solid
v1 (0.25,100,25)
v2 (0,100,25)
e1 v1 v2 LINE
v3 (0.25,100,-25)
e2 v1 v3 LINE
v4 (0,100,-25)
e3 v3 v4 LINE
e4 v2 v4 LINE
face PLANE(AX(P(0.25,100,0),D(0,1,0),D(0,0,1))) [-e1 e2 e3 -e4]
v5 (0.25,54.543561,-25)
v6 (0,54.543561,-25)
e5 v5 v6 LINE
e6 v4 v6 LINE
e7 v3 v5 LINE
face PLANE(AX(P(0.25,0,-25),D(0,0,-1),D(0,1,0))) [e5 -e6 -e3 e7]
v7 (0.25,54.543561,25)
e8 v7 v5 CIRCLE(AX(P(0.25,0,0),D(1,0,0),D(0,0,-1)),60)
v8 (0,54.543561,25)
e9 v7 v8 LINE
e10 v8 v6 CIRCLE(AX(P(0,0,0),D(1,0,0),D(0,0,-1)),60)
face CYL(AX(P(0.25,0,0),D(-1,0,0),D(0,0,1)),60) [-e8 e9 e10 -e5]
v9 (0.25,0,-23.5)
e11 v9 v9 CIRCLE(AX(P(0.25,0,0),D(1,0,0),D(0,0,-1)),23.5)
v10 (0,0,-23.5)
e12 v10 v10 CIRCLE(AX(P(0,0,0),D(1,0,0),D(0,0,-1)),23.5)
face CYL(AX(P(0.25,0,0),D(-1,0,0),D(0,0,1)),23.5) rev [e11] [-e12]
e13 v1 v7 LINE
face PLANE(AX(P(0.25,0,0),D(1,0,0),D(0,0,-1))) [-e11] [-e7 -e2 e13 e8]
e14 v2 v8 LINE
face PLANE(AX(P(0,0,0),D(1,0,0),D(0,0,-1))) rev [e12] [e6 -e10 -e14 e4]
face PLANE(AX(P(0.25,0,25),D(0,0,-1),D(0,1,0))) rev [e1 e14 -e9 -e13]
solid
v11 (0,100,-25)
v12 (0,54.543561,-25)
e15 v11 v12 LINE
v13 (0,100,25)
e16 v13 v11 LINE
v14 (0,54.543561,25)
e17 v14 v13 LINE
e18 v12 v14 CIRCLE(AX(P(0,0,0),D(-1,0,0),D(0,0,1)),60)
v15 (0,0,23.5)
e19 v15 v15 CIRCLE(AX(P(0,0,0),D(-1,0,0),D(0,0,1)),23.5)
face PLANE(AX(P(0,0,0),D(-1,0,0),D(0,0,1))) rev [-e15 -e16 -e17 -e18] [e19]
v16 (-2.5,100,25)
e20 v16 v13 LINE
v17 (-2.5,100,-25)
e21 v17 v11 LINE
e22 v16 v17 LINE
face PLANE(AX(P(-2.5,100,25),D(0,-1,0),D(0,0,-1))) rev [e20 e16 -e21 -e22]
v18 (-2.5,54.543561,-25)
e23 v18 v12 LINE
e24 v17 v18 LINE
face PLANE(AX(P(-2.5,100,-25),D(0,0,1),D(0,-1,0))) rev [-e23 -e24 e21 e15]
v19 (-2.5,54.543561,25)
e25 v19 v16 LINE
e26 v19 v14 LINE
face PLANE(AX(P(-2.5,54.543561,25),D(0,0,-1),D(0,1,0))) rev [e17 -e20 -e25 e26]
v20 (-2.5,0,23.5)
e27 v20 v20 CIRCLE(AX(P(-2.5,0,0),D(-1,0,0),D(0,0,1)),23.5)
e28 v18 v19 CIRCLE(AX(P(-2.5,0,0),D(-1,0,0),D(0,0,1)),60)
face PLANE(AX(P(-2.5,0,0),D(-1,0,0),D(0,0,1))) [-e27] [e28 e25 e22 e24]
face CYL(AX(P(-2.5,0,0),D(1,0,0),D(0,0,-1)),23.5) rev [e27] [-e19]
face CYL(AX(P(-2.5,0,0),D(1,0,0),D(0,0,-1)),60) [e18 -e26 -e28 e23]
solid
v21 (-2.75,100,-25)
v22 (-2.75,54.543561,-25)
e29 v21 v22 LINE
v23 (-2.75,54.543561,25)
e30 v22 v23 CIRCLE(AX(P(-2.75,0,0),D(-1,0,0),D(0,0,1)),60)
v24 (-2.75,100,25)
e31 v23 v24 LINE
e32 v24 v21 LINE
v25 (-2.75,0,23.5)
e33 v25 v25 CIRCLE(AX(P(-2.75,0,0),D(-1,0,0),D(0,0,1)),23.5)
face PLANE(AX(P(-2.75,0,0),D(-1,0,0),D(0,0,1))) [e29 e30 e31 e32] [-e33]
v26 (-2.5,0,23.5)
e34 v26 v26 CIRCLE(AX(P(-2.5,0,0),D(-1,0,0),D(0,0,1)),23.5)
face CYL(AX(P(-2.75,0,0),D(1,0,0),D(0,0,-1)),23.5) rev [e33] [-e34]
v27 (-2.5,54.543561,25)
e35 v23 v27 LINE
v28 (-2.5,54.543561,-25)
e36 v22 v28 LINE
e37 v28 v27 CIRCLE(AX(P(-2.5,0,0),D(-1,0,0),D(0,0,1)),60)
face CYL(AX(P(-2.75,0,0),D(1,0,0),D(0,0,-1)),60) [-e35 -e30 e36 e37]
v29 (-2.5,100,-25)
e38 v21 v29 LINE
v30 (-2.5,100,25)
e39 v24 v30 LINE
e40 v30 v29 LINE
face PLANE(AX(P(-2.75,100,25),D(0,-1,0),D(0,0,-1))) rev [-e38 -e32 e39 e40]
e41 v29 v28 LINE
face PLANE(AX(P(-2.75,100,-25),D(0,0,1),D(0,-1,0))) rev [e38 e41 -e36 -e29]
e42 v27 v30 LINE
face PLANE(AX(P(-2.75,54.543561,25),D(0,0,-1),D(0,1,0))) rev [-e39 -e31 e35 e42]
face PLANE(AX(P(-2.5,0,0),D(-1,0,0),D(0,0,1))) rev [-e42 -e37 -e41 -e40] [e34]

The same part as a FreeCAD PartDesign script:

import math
import FreeCAD as App
import Part
import Sketcher
from FreeCAD import Vector
Q = App.Units.Quantity

doc = App.newDocument("Part")
body = doc.addObject("PartDesign::Body", "Body")

# Sketch on YZ plane
sketch1 = body.newObject("Sketcher::SketchObject", "Sketch")
sketch1.AttachmentSupport = (doc.getObject("YZ_Plane"), [""])
sketch1.MapMode = "FlatFace"
sketch1.addGeometry([
    Part.LineSegment(Vector(100, -25, 0), Vector(100, 25, 0)),  # 0
    Part.LineSegment(Vector(100, 25, 0), Vector(54.543561, 25, 0)),  # 1
    Part.ArcOfCircle(Part.Circle(Vector(0, 0, 0), Vector(0, 0, 1), 60), math.radians(24.624318), math.radians(335.375682)),  # 2
    Part.LineSegment(Vector(54.543561, -25, 0), Vector(100, -25, 0)),  # 3
    Part.Circle(Vector(0, 0, 0), Vector(0, 0, 1), 23.5),  # 4
], False)
sketch1.addConstraint([
    Sketcher.Constraint("Coincident", 0, 2, 1, 1),
    Sketcher.Constraint("Coincident", 1, 2, 2, 1),
    Sketcher.Constraint("Coincident", 2, 2, 3, 1),
    Sketcher.Constraint("Coincident", 3, 2, 0, 1),
    Sketcher.Constraint("Vertical", 0),
    Sketcher.Constraint("Horizontal", 1),
    Sketcher.Constraint("Horizontal", 3),
    Sketcher.Constraint("Coincident", 2, 3, -1, 1),
    Sketcher.Constraint("Coincident", 4, 3, -1, 1),
    Sketcher.Constraint("Vertical", 1, 2, 2, 2),
    Sketcher.Constraint("Diameter", 4, Q("47 mm")),
    Sketcher.Constraint("Radius", 2, Q("60 mm")),
    Sketcher.Constraint("DistanceY", 0, 1, 0, 2, Q("50 mm")),
    Sketcher.Constraint("DistanceX", -1, 1, 0, 2, Q("100 mm")),
])
pad1 = body.newObject("PartDesign::Pad", "Pad")
pad1.Profile = sketch1
pad1.Length = 0.25
body2 = doc.addObject("PartDesign::Body", "Body001")

# Sketch on YZ plane
sketch2 = body2.newObject("Sketcher::SketchObject", "Sketch001")
sketch2.AttachmentSupport = (doc.getObject("YZ_Plane001"), [""])
sketch2.MapMode = "FlatFace"
sketch2.addGeometry([
    Part.LineSegment(Vector(54.543561, 25, 0), Vector(100, 25, 0)),  # 0
    Part.LineSegment(Vector(100, 25, 0), Vector(100, -25, 0)),  # 1
    Part.LineSegment(Vector(100, -25, 0), Vector(54.543561, -25, 0)),  # 2
    Part.ArcOfCircle(Part.Circle(Vector(0, 0, 0), Vector(0, 0, 1), 60), math.radians(24.624318), math.radians(335.375682)),  # 3
    Part.Circle(Vector(0, 0, 0), Vector(0, 0, 1), 23.5),  # 4
], False)
sketch2.addConstraint([
    Sketcher.Constraint("Coincident", 0, 2, 1, 1),
    Sketcher.Constraint("Coincident", 1, 2, 2, 1),
    Sketcher.Constraint("Coincident", 2, 2, 3, 2),
    Sketcher.Constraint("Coincident", 3, 1, 0, 1),
    Sketcher.Constraint("Horizontal", 0),
    Sketcher.Constraint("Vertical", 1),
    Sketcher.Constraint("Horizontal", 2),
    Sketcher.Constraint("Coincident", 3, 3, -1, 1),
    Sketcher.Constraint("Coincident", 4, 3, -1, 1),
    Sketcher.Constraint("Vertical", 2, 2, 3, 1),
    Sketcher.Constraint("Diameter", 4, Q("47 mm")),
    Sketcher.Constraint("Radius", 3, Q("60 mm")),
    Sketcher.Constraint("DistanceY", 1, 2, 1, 1, Q("50 mm")),
    Sketcher.Constraint("DistanceX", -1, 1, 0, 2, Q("100 mm")),
])
pad2 = body2.newObject("PartDesign::Pad", "Pad001")
pad2.Profile = sketch2
pad2.Length = 2.5
pad2.Reversed = True
body3 = doc.addObject("PartDesign::Body", "Body002")

# Sketch on YZ plane
sketch3 = body3.newObject("Sketcher::SketchObject", "Sketch002")
sketch3.AttachmentSupport = (doc.getObject("YZ_Plane002"), [""])
sketch3.MapMode = "FlatFace"
sketch3.AttachmentOffset = App.Placement(Vector(0, 0, -2.5), App.Rotation())
sketch3.addGeometry([
    Part.LineSegment(Vector(54.543561, 25, 0), Vector(100, 25, 0)),  # 0
    Part.LineSegment(Vector(100, 25, 0), Vector(100, -25, 0)),  # 1
    Part.LineSegment(Vector(100, -25, 0), Vector(54.543561, -25, 0)),  # 2
    Part.ArcOfCircle(Part.Circle(Vector(0, 0, 0), Vector(0, 0, 1), 60), math.radians(24.624318), math.radians(335.375682)),  # 3
    Part.Circle(Vector(0, 0, 0), Vector(0, 0, 1), 23.5),  # 4
], False)
sketch3.addConstraint([
    Sketcher.Constraint("Coincident", 0, 2, 1, 1),
    Sketcher.Constraint("Coincident", 1, 2, 2, 1),
    Sketcher.Constraint("Coincident", 2, 2, 3, 2),
    Sketcher.Constraint("Coincident", 3, 1, 0, 1),
    Sketcher.Constraint("Horizontal", 0),
    Sketcher.Constraint("Vertical", 1),
    Sketcher.Constraint("Horizontal", 2),
    Sketcher.Constraint("Coincident", 3, 3, -1, 1),
    Sketcher.Constraint("Coincident", 4, 3, -1, 1),
    Sketcher.Constraint("Vertical", 2, 2, 3, 1),
    Sketcher.Constraint("Diameter", 4, Q("47 mm")),
    Sketcher.Constraint("Radius", 3, Q("60 mm")),
    Sketcher.Constraint("DistanceY", 1, 2, 1, 1, Q("50 mm")),
    Sketcher.Constraint("DistanceX", -1, 1, 0, 2, Q("100 mm")),
])
pad3 = body3.newObject("PartDesign::Pad", "Pad002")
pad3.Profile = sketch3
pad3.Length = 0.25
pad3.Reversed = True

doc.recompute()
